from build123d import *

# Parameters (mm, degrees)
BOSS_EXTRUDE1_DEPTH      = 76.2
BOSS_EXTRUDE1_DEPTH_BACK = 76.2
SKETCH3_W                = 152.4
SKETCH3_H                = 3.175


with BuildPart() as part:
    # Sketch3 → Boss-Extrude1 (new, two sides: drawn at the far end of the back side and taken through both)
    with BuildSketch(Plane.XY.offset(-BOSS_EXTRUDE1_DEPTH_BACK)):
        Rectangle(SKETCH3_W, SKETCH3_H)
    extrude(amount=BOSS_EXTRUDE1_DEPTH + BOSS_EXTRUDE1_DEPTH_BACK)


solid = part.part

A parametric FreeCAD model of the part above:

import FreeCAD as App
import Part
import Sketcher
from FreeCAD import Vector
Q = App.Units.Quantity

doc = App.newDocument("Part")
body = doc.addObject("PartDesign::Body", "Body")

# Sketch on XY plane
sketch1 = body.newObject("Sketcher::SketchObject", "Sketch")
sketch1.AttachmentSupport = (doc.getObject("XY_Plane"), [""])
sketch1.MapMode = "FlatFace"
sketch1.addGeometry([
    Part.LineSegment(Vector(-76.2, 1.6, 0), Vector(-76.2, -1.6, 0)),
    Part.LineSegment(Vector(-76.2, -1.6, 0), Vector(76.2, -1.6, 0)),
    Part.LineSegment(Vector(76.2, -1.6, 0), Vector(76.2, 1.6, 0)),
    Part.LineSegment(Vector(76.2, 1.6, 0), Vector(-76.2, 1.6, 0)),
], False)
sketch1.addConstraint([
    Sketcher.Constraint("Coincident", 0, 2, 1, 1),
    Sketcher.Constraint("Coincident", 1, 2, 2, 1),
    Sketcher.Constraint("Coincident", 2, 2, 3, 1),
    Sketcher.Constraint("Coincident", 3, 2, 0, 1),
    Sketcher.Constraint("Vertical", 0),
    Sketcher.Constraint("Horizontal", 1),
    Sketcher.Constraint("Vertical", 2),
    Sketcher.Constraint("Horizontal", 3),
    Sketcher.Constraint("Symmetric", 0, 2, 2, 2, -1, 1),
    Sketcher.Constraint("DistanceX", 1, 1, 1, 2, Q("6 in")),
    Sketcher.Constraint("DistanceY", 0, 2, 0, 1, Q("0.125 in")),
])
pad1 = body.newObject("PartDesign::Pad", "Pad")
pad1.Profile = sketch1
pad1.Type = "TwoLengths"
pad1.Length = Q("3 in")
pad1.Length2 = Q("3 in")

doc.recompute()
